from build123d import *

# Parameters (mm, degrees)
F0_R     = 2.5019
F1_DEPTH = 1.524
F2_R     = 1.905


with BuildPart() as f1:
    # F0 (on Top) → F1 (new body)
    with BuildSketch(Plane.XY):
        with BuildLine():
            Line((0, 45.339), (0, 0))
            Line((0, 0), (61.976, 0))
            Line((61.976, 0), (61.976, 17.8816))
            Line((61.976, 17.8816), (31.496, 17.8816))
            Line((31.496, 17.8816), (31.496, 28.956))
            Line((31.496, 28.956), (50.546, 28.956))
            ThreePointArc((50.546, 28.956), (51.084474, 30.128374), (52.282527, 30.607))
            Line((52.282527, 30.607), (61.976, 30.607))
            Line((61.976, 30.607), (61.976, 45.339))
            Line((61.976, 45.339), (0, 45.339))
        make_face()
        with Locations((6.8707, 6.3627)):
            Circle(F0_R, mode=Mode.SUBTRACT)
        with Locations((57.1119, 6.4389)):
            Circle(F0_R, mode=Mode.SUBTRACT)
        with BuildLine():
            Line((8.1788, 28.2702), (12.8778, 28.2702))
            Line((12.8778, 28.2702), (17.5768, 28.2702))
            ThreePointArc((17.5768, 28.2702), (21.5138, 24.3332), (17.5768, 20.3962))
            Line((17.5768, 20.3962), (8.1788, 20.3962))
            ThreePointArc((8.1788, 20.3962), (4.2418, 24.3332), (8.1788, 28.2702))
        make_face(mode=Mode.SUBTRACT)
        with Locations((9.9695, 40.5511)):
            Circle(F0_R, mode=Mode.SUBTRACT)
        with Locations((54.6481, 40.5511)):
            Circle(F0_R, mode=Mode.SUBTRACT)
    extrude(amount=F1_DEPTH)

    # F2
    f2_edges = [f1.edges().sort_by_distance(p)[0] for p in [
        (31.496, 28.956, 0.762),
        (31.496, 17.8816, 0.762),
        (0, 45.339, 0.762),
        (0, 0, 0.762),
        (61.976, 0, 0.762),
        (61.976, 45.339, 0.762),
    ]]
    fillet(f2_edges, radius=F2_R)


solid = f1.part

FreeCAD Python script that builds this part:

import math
import FreeCAD as App
import Part
import Sketcher

V = App.Vector
Q = App.Units.Quantity


def edges_at(feature, points):
    """Names of the edges that pass closest to the given points."""
    edges = feature.Shape.Edges
    near = lambda p: min(range(len(edges)), key=lambda i: edges[i].distToShape(Part.Vertex(*p))[0])
    return sorted({f"Edge{near(p) + 1}" for p in points})

doc = App.newDocument("Part")
body = doc.addObject("PartDesign::Body", "Body")

# Sketch on XY plane
sketch1 = doc.addObject("Sketcher::SketchObject", "Sketch")
body.addObject(sketch1)
sketch1.AttachmentSupport = (doc.XY_Plane, [""])
sketch1.MapMode = "FlatFace"
sketch1.addGeometry(Part.LineSegment(V(0, 45.3, 0), V(0, 0, 0)), False)
sketch1.addGeometry(Part.LineSegment(V(0, 0, 0), V(62, 0, 0)), False)
sketch1.addGeometry(Part.LineSegment(V(62, 0, 0), V(62, 17.9, 0)), False)
sketch1.addGeometry(Part.LineSegment(V(62, 17.9, 0), V(31.5, 17.9, 0)), False)
sketch1.addGeometry(Part.LineSegment(V(31.5, 17.9, 0), V(31.5, 29, 0)), False)
sketch1.addGeometry(Part.LineSegment(V(31.5, 29, 0), V(50.5, 29, 0)), False)
sketch1.addGeometry(Part.ArcOfCircle(Part.Circle(V(52.3, 28.9, 0), V(0, 0, 1), 1.7), math.radians(90), math.radians(177)), False)
sketch1.addGeometry(Part.LineSegment(V(52.3, 30.6, 0), V(62, 30.6, 0)), False)
sketch1.addGeometry(Part.LineSegment(V(62, 30.6, 0), V(62, 45.3, 0)), False)
sketch1.addGeometry(Part.LineSegment(V(62, 45.3, 0), V(0, 45.3, 0)), False)
sketch1.addGeometry(Part.Circle(V(6.9, 6.4, 0), V(0, 0, 1), 2.5), False)
sketch1.addGeometry(Part.Circle(V(57.1, 6.4, 0), V(0, 0, 1), 2.5), False)
sketch1.addGeometry(Part.ArcOfCircle(Part.Circle(V(8.2, 24.3, 0), V(0, 0, 1), 3.9), math.radians(90), math.radians(270)), False)
sketch1.addGeometry(Part.LineSegment(V(8.2, 28.3, 0), V(17.6, 28.3, 0)), False)
sketch1.addGeometry(Part.ArcOfCircle(Part.Circle(V(17.6, 24.3, 0), V(0, 0, 1), 3.9), math.radians(-90), math.radians(90)), False)
sketch1.addGeometry(Part.LineSegment(V(17.6, 20.4, 0), V(8.2, 20.4, 0)), False)
sketch1.addGeometry(Part.Circle(V(10, 40.6, 0), V(0, 0, 1), 2.5), False)
sketch1.addGeometry(Part.Circle(V(54.6, 40.6, 0), V(0, 0, 1), 2.5), False)
sketch1.addConstraint(Sketcher.Constraint("Coincident", 0, 2, 1, 1))
sketch1.addConstraint(Sketcher.Constraint("Coincident", 1, 2, 2, 1))
sketch1.addConstraint(Sketcher.Constraint("Coincident", 2, 2, 3, 1))
sketch1.addConstraint(Sketcher.Constraint("Coincident", 3, 2, 4, 1))
sketch1.addConstraint(Sketcher.Constraint("Coincident", 4, 2, 5, 1))
sketch1.addConstraint(Sketcher.Constraint("Coincident", 5, 2, 6, 2))
sketch1.addConstraint(Sketcher.Constraint("Tangent", 6, 1, 7, 1))
sketch1.addConstraint(Sketcher.Constraint("Coincident", 7, 2, 8, 1))
sketch1.addConstraint(Sketcher.Constraint("Coincident", 8, 2, 9, 1))
sketch1.addConstraint(Sketcher.Constraint("Coincident", 9, 2, 0, 1))
sketch1.addConstraint(Sketcher.Constraint("Tangent", 12, 1, 13, 1))
sketch1.addConstraint(Sketcher.Constraint("Tangent", 13, 2, 14, 2))
sketch1.addConstraint(Sketcher.Constraint("Tangent", 14, 1, 15, 1))
sketch1.addConstraint(Sketcher.Constraint("Tangent", 15, 2, 12, 2))
sketch1.addConstraint(Sketcher.Constraint("Vertical", 0))
sketch1.addConstraint(Sketcher.Constraint("Horizontal", 1))
sketch1.addConstraint(Sketcher.Constraint("Vertical", 2))
sketch1.addConstraint(Sketcher.Constraint("Horizontal", 3))
sketch1.addConstraint(Sketcher.Constraint("Vertical", 4))
sketch1.addConstraint(Sketcher.Constraint("Horizontal", 5))
sketch1.addConstraint(Sketcher.Constraint("Horizontal", 7))
sketch1.addConstraint(Sketcher.Constraint("Vertical", 8))
sketch1.addConstraint(Sketcher.Constraint("Horizontal", 9))
sketch1.addConstraint(Sketcher.Constraint("Horizontal", 13))
sketch1.addConstraint(Sketcher.Constraint("Horizontal", 15))
sketch1.addConstraint(Sketcher.Constraint("Coincident", 0, 2, -1, 1))
sketch1.addConstraint(Sketcher.Constraint("Equal", 10, 11))
sketch1.addConstraint(Sketcher.Constraint("Equal", 11, 16))
sketch1.addConstraint(Sketcher.Constraint("Equal", 16, 17))
sketch1.addConstraint(Sketcher.Constraint("Horizontal", 16, 3, 17, 3))
sketch1.addConstraint(Sketcher.Constraint("Vertical", 2, 2, 7, 2))
sketch1.addConstraint(Sketcher.Constraint("Diameter", 10, Q("0.197 in")))
sketch1.addConstraint(Sketcher.Constraint("DistanceX", 3, 2, 3, 1, Q("1.2 in")))
sketch1.addConstraint(Sketcher.Constraint("Radius", 12, Q("0.155 in")))
sketch1.addConstraint(Sketcher.Constraint("DistanceX", 1, 1, 1, 2, Q("2.44 in")))
sketch1.addConstraint(Sketcher.Constraint("DistanceX", 5, 1, 5, 2, Q("0.75 in")))
sketch1.addConstraint(Sketcher.Constraint("DistanceX", 13, 1, 13, 2, Q("0.37 in")))
sketch1.addConstraint(Sketcher.Constraint("DistanceY", 8, 1, 8, 2, Q("0.58 in")))
sketch1.addConstraint(Sketcher.Constraint("DistanceY", 0, 2, 0, 1, Q("1.785 in")))
sketch1.addConstraint(Sketcher.Constraint("DistanceY", 2, 1, 2, 2, Q("0.704 in")))
sketch1.addConstraint(Sketcher.Constraint("DistanceY", 4, 1, 4, 2, Q("0.436 in")))
sketch1.addConstraint(Sketcher.Constraint("DistanceX", -1, 1, 12, 3, Q("0.322 in")))
sketch1.addConstraint(Sketcher.Constraint("DistanceY", -1, 1, 12, 3, Q("0.958 in")))
sketch1.addConstraint(Sketcher.Constraint("DistanceX", 10, 3, 11, 3, Q("1.978 in")))
sketch1.addConstraint(Sketcher.Constraint("DistanceY", 10, 3, 11, 3, Q("0.003 in")))
sketch1.addConstraint(Sketcher.Constraint("DistanceX", 10, 3, 16, 3, Q("0.122 in")))
sketch1.addConstraint(Sketcher.Constraint("DistanceY", 10, 3, 16, 3, Q("1.346 in")))
sketch1.addConstraint(Sketcher.Constraint("DistanceX", 17, 3, 11, 3, Q("0.097 in")))
sketch1.addConstraint(Sketcher.Constraint("DistanceX", -1, 1, 10, 3, Q("0.2705 in")))
sketch1.addConstraint(Sketcher.Constraint("DistanceY", -1, 1, 10, 3, Q("0.2505 in")))
sketch1.addConstraint(Sketcher.Constraint("Radius", 6, 1.738743))
pad1 = doc.addObject("PartDesign::Pad", "Pad")
body.addObject(pad1)
pad1.Profile = sketch1
pad1.Length = Q("0.06 in")
doc.recompute()

fillet = doc.addObject("PartDesign::Fillet", "Fillet")
body.addObject(fillet)
fillet.Base = (pad1, edges_at(pad1, [
    (31.496, 28.956, 0.762),
    (31.496, 17.882, 0.762),
    (0, 45.339, 0.762),
    (0, 0, 0.762),
    (61.976, 0, 0.762),
    (61.976, 45.339, 0.762),
]))
fillet.Radius = Q("0.075 in")

doc.recompute()
